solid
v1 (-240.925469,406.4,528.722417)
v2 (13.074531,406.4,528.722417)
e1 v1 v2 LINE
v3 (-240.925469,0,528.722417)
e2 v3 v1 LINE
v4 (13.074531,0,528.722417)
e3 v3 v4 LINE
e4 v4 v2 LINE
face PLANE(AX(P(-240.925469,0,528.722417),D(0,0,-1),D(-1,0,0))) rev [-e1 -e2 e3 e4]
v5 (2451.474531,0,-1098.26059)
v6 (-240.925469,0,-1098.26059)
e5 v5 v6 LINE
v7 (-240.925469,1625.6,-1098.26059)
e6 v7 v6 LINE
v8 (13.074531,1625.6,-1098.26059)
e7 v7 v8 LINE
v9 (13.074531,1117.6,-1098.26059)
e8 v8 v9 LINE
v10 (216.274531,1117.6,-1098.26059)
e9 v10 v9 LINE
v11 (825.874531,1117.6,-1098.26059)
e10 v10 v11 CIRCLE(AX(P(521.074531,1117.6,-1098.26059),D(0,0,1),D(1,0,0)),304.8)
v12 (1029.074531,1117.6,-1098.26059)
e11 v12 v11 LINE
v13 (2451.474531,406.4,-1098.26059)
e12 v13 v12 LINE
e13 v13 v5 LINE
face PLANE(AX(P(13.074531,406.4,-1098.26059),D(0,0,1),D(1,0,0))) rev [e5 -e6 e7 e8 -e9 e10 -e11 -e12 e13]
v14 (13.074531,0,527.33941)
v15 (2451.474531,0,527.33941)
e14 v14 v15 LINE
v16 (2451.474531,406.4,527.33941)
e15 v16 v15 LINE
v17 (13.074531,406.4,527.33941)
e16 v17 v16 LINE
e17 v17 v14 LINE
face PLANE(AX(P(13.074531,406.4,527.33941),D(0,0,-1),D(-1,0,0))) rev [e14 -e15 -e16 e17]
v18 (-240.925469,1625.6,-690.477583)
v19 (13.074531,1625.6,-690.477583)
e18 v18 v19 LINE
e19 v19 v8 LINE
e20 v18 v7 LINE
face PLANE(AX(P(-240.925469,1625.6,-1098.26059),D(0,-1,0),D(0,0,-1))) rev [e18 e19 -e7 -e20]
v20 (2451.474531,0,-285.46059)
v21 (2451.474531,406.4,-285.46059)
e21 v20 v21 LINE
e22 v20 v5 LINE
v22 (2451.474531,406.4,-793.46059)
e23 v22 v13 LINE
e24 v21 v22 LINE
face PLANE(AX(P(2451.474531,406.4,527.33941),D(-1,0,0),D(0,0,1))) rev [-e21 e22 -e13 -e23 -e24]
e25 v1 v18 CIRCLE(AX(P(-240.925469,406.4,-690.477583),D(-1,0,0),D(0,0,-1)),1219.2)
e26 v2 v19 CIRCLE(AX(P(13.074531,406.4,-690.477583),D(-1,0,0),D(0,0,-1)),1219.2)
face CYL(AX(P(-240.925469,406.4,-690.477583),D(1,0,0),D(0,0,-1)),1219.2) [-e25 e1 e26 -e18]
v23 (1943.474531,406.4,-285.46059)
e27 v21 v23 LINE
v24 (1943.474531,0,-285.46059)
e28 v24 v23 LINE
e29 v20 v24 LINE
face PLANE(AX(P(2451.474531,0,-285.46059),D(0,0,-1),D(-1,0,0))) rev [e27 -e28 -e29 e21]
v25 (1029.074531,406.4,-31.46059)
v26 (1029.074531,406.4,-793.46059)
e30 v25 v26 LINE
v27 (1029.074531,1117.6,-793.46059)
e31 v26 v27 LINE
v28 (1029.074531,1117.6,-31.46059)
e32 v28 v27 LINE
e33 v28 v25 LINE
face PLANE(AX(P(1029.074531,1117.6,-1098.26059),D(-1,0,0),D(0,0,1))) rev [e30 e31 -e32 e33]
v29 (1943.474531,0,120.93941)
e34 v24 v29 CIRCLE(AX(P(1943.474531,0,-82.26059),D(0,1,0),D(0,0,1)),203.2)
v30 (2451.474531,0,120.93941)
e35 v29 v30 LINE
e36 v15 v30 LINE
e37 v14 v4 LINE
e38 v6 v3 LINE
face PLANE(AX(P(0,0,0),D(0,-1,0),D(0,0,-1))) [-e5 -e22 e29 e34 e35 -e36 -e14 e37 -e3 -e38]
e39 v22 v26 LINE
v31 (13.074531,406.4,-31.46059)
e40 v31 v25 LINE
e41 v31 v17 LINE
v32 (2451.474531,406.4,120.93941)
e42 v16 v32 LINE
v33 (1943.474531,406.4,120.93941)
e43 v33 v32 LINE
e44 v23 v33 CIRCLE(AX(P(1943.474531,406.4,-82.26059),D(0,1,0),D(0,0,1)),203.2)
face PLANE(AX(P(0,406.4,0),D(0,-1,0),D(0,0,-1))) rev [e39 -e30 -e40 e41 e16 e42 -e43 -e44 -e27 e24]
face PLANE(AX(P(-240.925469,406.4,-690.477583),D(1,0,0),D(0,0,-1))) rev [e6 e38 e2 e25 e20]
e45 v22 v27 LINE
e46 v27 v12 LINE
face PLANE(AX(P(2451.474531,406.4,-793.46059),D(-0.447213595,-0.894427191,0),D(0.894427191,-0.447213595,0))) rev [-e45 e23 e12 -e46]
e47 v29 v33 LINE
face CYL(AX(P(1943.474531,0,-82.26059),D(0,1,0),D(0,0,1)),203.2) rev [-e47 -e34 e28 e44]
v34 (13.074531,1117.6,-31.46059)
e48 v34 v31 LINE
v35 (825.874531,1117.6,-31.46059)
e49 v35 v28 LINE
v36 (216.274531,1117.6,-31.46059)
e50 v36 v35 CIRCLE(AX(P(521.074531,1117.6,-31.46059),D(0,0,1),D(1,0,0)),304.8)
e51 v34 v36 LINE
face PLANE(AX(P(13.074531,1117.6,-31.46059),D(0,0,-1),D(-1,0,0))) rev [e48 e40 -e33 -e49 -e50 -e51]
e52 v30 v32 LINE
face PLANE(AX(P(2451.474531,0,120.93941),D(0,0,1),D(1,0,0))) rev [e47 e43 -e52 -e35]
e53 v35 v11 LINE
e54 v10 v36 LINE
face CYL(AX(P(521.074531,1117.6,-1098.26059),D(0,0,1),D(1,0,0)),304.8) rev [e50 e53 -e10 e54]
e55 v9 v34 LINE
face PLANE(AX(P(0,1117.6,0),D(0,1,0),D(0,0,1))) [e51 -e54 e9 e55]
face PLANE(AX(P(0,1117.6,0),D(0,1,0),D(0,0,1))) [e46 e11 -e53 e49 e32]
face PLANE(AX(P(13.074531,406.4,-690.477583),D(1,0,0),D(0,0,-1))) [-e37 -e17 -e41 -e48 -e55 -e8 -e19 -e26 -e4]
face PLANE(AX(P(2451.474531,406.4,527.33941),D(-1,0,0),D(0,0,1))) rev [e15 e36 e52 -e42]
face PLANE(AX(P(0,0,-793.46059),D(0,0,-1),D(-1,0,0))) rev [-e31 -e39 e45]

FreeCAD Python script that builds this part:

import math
import FreeCAD as App
import Part
import Sketcher
Q = App.Units.Quantity


def add_polygon(sketch, points):
    """Adds a closed chain of lines whose ends are joined by coincident constraints."""
    first, n = sketch.GeometryCount, len(points)
    for a, b in zip(points, points[1:] + points[:1]):
        sketch.addGeometry(Part.LineSegment(App.Vector(*a, 0), App.Vector(*b, 0)), False)
    for i in range(n):
        sketch.addConstraint(Sketcher.Constraint("Coincident", first + i, 2, first + (i + 1) % n, 1))

doc = App.newDocument("Part")
body = doc.addObject("PartDesign::Body", "Body")

sketch1 = doc.addObject("Sketcher::SketchObject", "Sketch")
body.addObject(sketch1)
sketch1.AttachmentSupport = (doc.XZ_Plane, [""])
sketch1.MapMode = "FlatFace"
add_polygon(sketch1, [(13.074531, -1098.26059), (13.074531, 527.33941), (2451.474531, 527.33941), (2451.474531, -1098.26059)])
sketch1.addConstraint([
    Sketcher.Constraint("Vertical", 0),
    Sketcher.Constraint("Horizontal", 1),
    Sketcher.Constraint("Vertical", 2),
    Sketcher.Constraint("Horizontal", 3),
    Sketcher.Constraint("DistanceX", 1, 1, 1, 2, Q("96 in")),
    Sketcher.Constraint("DistanceY", 0, 1, 0, 2, Q("64 in")),
    Sketcher.Constraint("DistanceX", -1, 1, 0, 2, Q("13.074531 mm")),
    Sketcher.Constraint("DistanceY", -1, 1, 0, 2, Q("527.33941 mm")),
])
pad1 = doc.addObject("PartDesign::Pad", "Pad")
body.addObject(pad1)
pad1.Profile = sketch1
pad1.Length = Q("16 in")
pad1.Reversed = True

sketch2 = doc.addObject("Sketcher::SketchObject", "Sketch001")
body.addObject(sketch2)
sketch2.AttachmentSupport = (doc.XZ_Plane, [""])
sketch2.MapMode = "FlatFace"
sketch2.AttachmentOffset = App.Placement(App.Vector(0, 0, -16 * 25.4), App.Rotation())
sketch2.addGeometry([
    Part.LineSegment(App.Vector(1943.474531, 120.93941, 0), App.Vector(2451.474531, 120.93941, 0)),
    Part.ArcOfCircle(Part.Circle(App.Vector(2451.474531, -82.26059, 0), App.Vector(0, 0, 1), 203.2), math.radians(-90), math.radians(90)),
    Part.LineSegment(App.Vector(2451.474531, -285.46059, 0), App.Vector(1943.474531, -285.46059, 0)),
    Part.ArcOfCircle(Part.Circle(App.Vector(1943.474531, -82.26059, 0), App.Vector(0, 0, 1), 203.2), math.radians(90), math.radians(270)),
], False)
sketch2.addConstraint([
    Sketcher.Constraint("Tangent", 0, 2, 1, 2),
    Sketcher.Constraint("Tangent", 1, 1, 2, 1),
    Sketcher.Constraint("Tangent", 2, 2, 3, 2),
    Sketcher.Constraint("Tangent", 3, 1, 0, 1),
    Sketcher.Constraint("Horizontal", 0),
    Sketcher.Constraint("Horizontal", 2),
    Sketcher.Constraint("Radius", 1, Q("8 in")),
    Sketcher.Constraint("DistanceX", 0, 1, 0, 2, Q("20 in")),
    Sketcher.Constraint("DistanceX", -1, 1, 1, 3, Q("2451.474531 mm")),
    Sketcher.Constraint("DistanceY", 1, 3, -1, 1, Q("82.26059 mm")),
])
pocket1 = doc.addObject("PartDesign::Pocket", "Pocket")
body.addObject(pocket1)
pocket1.Profile = sketch2
pocket1.Type = "ThroughAll"
pocket1.Reversed = True

sketch3 = doc.addObject("Sketcher::SketchObject", "Sketch002")
body.addObject(sketch3)
sketch3.AttachmentSupport = (doc.YZ_Plane, [""])
sketch3.MapMode = "FlatFace"
sketch3.AttachmentOffset = App.Placement(App.Vector(0, 0, 13.074531), App.Rotation())
sketch3.addGeometry([
    Part.LineSegment(App.Vector(0, -1098.26059, 0), App.Vector(0, 528.722417, 0)),
    Part.LineSegment(App.Vector(0, 528.722417, 0), App.Vector(406.4, 528.722417, 0)),
    Part.ArcOfCircle(Part.Circle(App.Vector(406.4, -690.477583, 0), App.Vector(0, 0, 1), 1219.2), math.radians(0), math.radians(90)),
    Part.LineSegment(App.Vector(1625.6, -690.477583, 0), App.Vector(1625.6, -1098.26059, 0)),
    Part.LineSegment(App.Vector(1625.6, -1098.26059, 0), App.Vector(0, -1098.26059, 0)),
], False)
sketch3.addConstraint([
    Sketcher.Constraint("Coincident", 0, 2, 1, 1),
    Sketcher.Constraint("Tangent", 1, 2, 2, 2),
    Sketcher.Constraint("Tangent", 2, 1, 3, 1),
    Sketcher.Constraint("Coincident", 3, 2, 4, 1),
    Sketcher.Constraint("Coincident", 4, 2, 0, 1),
    Sketcher.Constraint("Vertical", 0),
    Sketcher.Constraint("Horizontal", 1),
    Sketcher.Constraint("Vertical", 3),
    Sketcher.Constraint("Horizontal", 4),
    Sketcher.Constraint("PointOnObject", 0, 2, -2),
    Sketcher.Constraint("Radius", 2, Q("48 in")),
    Sketcher.Constraint("DistanceX", 1, 1, 1, 2, Q("16 in")),
    Sketcher.Constraint("DistanceY", 0, 1, 0, 2, Q("1626.983007 mm")),
    Sketcher.Constraint("DistanceY", 3, 2, -1, 1, Q("1098.26059 mm")),
])
pad2 = doc.addObject("PartDesign::Pad", "Pad001")
body.addObject(pad2)
pad2.Profile = sketch3
pad2.Length = Q("10 in")
pad2.Reversed = True

sketch4 = doc.addObject("Sketcher::SketchObject", "Sketch003")
body.addObject(sketch4)
sketch4.AttachmentSupport = (doc.XZ_Plane, [""])
sketch4.MapMode = "FlatFace"
sketch4.AttachmentOffset = App.Placement(App.Vector(0, 0, -16 * 25.4), App.Rotation())
add_polygon(sketch4, [(13.074531, -1098.26059), (13.074531, -31.46059), (1029.074531, -31.46059), (1029.074531, -1098.26059)])
sketch4.addConstraint([
    Sketcher.Constraint("Vertical", 0),
    Sketcher.Constraint("Horizontal", 1),
    Sketcher.Constraint("Vertical", 2),
    Sketcher.Constraint("Horizontal", 3),
    Sketcher.Constraint("DistanceX", 1, 1, 1, 2, Q("40 in")),
    Sketcher.Constraint("DistanceY", 0, 1, 0, 2, Q("42 in")),
    Sketcher.Constraint("DistanceX", -1, 1, 0, 2, Q("13.074531 mm")),
    Sketcher.Constraint("DistanceY", 0, 2, -1, 1, Q("31.46059 mm")),
])
pad3 = doc.addObject("PartDesign::Pad", "Pad002")
body.addObject(pad3)
pad3.Profile = sketch4
pad3.Length = Q("28 in")
pad3.Reversed = True

sketch5 = doc.addObject("Sketcher::SketchObject", "Sketch004")
body.addObject(sketch5)
sketch5.AttachmentSupport = (doc.XY_Plane, [""])
sketch5.MapMode = "FlatFace"
sketch5.AttachmentOffset = App.Placement(App.Vector(0, 0, -31.46059), App.Rotation())
sketch5.addGeometry(Part.Circle(App.Vector(521.074531, 1117.6, 0), App.Vector(0, 0, 1), 304.8), False)
sketch5.addConstraint([
    Sketcher.Constraint("Diameter", 0, Q("24 in")),
    Sketcher.Constraint("DistanceY", -1, 1, 0, 3, Q("44 in")),
    Sketcher.Constraint("DistanceX", -1, 1, 0, 3, Q("521.074531 mm")),
])
pocket2 = doc.addObject("PartDesign::Pocket", "Pocket001")
body.addObject(pocket2)
pocket2.Profile = sketch5
pocket2.Type = "ThroughAll"

sketch6 = doc.addObject("Sketcher::SketchObject", "Sketch005")
body.addObject(sketch6)
sketch6.AttachmentSupport = (doc.XY_Plane, [""])
sketch6.MapMode = "FlatFace"
sketch6.AttachmentOffset = App.Placement(App.Vector(0, 0, -1098.26059), App.Rotation())
add_polygon(sketch6, [(1029.074531, 1117.6), (2451.474531, 406.4), (1029.074531, 406.4)])
sketch6.addConstraint([
    Sketcher.Constraint("Horizontal", 1),
    Sketcher.Constraint("Vertical", 2),
    Sketcher.Constraint("DistanceX", 1, 2, 1, 1, Q("56 in")),
    Sketcher.Constraint("DistanceY", 2, 1, 2, 2, Q("28 in")),
    Sketcher.Constraint("DistanceY", -1, 1, 0, 2, Q("16 in")),
    Sketcher.Constraint("DistanceX", -1, 1, 0, 2, Q("2451.474531 mm")),
])
pad4 = doc.addObject("PartDesign::Pad", "Pad003")
body.addObject(pad4)
pad4.Profile = sketch6
pad4.Length = Q("12 in")

doc.recompute()
